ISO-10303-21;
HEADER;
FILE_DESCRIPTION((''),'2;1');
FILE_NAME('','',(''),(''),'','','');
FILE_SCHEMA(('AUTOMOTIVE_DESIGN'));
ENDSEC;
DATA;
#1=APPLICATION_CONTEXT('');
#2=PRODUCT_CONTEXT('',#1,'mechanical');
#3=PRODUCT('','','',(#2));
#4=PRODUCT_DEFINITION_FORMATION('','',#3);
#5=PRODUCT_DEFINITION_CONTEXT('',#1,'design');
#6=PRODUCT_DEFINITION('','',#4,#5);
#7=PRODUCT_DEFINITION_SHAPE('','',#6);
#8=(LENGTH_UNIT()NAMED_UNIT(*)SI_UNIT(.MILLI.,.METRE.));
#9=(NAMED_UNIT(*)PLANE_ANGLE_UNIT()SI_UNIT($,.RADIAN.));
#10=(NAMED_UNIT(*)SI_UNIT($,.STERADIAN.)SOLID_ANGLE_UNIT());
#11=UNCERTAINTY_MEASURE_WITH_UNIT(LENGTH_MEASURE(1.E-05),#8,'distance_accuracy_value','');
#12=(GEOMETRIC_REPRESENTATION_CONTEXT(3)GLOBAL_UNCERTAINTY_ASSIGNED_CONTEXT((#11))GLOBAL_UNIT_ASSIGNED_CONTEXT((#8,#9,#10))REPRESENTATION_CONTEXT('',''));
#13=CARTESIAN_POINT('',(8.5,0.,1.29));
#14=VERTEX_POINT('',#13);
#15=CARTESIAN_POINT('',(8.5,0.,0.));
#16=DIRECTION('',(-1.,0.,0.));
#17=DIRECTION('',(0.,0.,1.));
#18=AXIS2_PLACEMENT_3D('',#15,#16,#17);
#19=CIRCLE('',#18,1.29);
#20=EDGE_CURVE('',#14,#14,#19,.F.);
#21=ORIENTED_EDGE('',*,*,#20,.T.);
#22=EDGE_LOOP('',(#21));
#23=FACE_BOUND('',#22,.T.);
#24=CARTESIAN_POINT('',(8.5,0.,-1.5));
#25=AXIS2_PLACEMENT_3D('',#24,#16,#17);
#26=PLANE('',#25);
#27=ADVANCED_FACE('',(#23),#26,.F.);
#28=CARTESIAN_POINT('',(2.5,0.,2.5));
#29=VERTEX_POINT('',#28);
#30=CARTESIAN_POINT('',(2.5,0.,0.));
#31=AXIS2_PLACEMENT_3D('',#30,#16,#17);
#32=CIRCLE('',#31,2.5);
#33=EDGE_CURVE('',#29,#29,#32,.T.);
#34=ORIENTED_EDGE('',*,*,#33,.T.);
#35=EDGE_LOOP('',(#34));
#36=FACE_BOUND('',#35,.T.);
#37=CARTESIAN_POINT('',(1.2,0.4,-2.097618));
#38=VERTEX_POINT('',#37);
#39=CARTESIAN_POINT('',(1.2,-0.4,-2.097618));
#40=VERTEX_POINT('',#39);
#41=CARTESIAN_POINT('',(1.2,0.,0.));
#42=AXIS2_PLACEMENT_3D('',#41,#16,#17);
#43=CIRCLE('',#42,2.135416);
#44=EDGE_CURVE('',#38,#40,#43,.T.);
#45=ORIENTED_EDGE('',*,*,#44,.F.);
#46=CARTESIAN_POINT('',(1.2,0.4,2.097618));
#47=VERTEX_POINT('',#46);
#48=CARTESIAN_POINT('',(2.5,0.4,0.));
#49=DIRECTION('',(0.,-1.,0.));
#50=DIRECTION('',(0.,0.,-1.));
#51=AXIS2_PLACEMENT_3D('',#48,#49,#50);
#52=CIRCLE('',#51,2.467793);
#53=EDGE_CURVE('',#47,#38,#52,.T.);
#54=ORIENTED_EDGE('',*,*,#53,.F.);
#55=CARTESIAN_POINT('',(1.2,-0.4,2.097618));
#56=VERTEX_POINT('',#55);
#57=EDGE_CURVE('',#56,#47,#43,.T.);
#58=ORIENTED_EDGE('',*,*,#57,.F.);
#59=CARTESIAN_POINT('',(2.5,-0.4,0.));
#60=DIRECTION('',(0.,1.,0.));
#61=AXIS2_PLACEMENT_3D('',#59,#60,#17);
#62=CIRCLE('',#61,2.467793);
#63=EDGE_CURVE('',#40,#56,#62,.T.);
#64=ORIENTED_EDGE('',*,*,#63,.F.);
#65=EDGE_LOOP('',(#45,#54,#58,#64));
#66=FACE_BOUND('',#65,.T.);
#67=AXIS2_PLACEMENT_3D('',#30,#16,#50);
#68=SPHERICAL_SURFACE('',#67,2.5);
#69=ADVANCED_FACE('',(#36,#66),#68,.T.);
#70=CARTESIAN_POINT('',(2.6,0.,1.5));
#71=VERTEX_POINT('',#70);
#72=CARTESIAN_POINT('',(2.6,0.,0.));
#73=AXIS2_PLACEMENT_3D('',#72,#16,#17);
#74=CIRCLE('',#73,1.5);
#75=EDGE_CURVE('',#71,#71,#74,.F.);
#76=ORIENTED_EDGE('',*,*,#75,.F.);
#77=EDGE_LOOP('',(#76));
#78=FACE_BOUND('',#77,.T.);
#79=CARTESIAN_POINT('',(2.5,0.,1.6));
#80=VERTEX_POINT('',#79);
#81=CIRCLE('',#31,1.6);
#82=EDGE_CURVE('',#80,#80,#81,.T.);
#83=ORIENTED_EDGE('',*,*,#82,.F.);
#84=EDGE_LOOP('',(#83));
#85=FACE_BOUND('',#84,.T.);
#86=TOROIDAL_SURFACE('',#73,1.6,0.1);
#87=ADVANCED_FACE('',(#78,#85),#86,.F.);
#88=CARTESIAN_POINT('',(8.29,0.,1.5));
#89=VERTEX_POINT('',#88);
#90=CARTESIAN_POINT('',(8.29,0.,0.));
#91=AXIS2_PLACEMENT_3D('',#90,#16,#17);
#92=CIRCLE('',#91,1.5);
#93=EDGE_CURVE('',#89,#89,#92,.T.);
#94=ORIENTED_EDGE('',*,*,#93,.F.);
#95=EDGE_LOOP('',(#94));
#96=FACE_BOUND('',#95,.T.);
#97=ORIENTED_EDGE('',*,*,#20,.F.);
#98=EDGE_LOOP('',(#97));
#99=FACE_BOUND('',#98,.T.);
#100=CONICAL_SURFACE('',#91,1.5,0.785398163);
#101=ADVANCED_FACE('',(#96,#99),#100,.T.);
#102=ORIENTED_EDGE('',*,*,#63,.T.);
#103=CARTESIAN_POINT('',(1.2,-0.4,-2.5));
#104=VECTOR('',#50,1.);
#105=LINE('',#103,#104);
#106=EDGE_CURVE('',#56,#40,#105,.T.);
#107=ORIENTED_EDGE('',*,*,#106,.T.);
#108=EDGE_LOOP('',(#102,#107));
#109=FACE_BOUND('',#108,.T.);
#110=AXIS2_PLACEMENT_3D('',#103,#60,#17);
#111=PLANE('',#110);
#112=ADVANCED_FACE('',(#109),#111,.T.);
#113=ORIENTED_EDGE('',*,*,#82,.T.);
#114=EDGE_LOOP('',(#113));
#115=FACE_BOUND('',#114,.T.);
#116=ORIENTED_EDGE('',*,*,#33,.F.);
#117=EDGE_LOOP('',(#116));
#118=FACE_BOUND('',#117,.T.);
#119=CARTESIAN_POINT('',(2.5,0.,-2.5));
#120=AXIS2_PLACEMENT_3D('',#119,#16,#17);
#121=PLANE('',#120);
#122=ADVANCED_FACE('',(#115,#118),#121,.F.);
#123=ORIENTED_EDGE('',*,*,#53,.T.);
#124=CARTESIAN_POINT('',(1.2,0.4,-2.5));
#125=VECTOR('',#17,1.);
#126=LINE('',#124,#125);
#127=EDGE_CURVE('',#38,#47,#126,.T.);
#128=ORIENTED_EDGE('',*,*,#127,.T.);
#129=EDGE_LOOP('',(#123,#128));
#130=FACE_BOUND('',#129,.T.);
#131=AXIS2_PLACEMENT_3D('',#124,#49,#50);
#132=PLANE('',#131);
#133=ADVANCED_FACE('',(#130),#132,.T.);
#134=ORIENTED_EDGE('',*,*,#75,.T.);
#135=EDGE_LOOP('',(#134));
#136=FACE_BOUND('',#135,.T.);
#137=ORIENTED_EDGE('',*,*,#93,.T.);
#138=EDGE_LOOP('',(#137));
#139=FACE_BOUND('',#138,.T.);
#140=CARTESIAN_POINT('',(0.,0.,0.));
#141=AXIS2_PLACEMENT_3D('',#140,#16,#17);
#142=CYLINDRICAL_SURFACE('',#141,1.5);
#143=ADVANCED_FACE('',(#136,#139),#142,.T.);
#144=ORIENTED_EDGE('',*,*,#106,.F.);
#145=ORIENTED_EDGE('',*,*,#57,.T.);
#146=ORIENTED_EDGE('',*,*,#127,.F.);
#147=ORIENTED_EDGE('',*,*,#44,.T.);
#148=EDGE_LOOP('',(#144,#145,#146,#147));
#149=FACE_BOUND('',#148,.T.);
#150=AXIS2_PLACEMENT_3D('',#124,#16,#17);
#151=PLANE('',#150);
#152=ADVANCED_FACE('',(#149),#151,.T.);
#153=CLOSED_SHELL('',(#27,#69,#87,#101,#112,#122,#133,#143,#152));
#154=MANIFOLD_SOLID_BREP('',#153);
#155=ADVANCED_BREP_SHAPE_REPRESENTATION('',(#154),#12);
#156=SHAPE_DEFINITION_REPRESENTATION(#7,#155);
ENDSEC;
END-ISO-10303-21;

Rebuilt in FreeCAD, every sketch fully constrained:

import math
import FreeCAD as App
import Part
import Sketcher
from FreeCAD import Vector


def edges_at(feature, points):
    """Names of the edges that pass closest to the given points."""
    edges = feature.Shape.Edges
    near = lambda p: min(range(len(edges)), key=lambda i: edges[i].distToShape(Part.Vertex(*p))[0])
    return sorted({f"Edge{near(p) + 1}" for p in points})


def add_polygon(sketch, points):
    """Adds a closed chain of lines whose ends are joined by coincident constraints."""
    first, n = sketch.GeometryCount, len(points)
    for a, b in zip(points, points[1:] + points[:1]):
        sketch.addGeometry(Part.LineSegment(App.Vector(*a, 0), App.Vector(*b, 0)), False)
    for i in range(n):
        sketch.addConstraint(Sketcher.Constraint("Coincident", first + i, 2, first + (i + 1) % n, 1))

doc = App.newDocument("Part")
body = doc.addObject("PartDesign::Body", "Body")

sketch1 = doc.addObject("Sketcher::SketchObject", "Sketch")
body.addObject(sketch1)
sketch1.AttachmentSupport = (doc.XZ_Plane, [""])
sketch1.MapMode = "FlatFace"
sketch1.addGeometry(Part.LineSegment(Vector(2.5, -1.5, 0), Vector(2.5, -2.5, 0)), False)
sketch1.addGeometry(Part.ArcOfCircle(Part.Circle(Vector(2.5, 0, 0), Vector(0, 0, 1), 2.5), math.radians(180), math.radians(270)), False)
sketch1.addGeometry(Part.LineSegment(Vector(0, 0, 0), Vector(8.5, 0, 0)), False)
sketch1.addGeometry(Part.LineSegment(Vector(8.5, 0, 0), Vector(8.5, -1.5, 0)), False)
sketch1.addGeometry(Part.LineSegment(Vector(8.5, -1.5, 0), Vector(2.5, -1.5, 0)), False)
sketch1.addConstraint(Sketcher.Constraint("Coincident", 0, 2, 1, 2))
sketch1.addConstraint(Sketcher.Constraint("Coincident", 1, 1, 2, 1))
sketch1.addConstraint(Sketcher.Constraint("Coincident", 2, 2, 3, 1))
sketch1.addConstraint(Sketcher.Constraint("Coincident", 3, 2, 4, 1))
sketch1.addConstraint(Sketcher.Constraint("Coincident", 4, 2, 0, 1))
sketch1.addConstraint(Sketcher.Constraint("Vertical", 0))
sketch1.addConstraint(Sketcher.Constraint("Horizontal", 2))
sketch1.addConstraint(Sketcher.Constraint("Vertical", 3))
sketch1.addConstraint(Sketcher.Constraint("Horizontal", 4))
sketch1.addConstraint(Sketcher.Constraint("Coincident", 1, 1, -1, 1))
sketch1.addConstraint(Sketcher.Constraint("PointOnObject", 1, 3, -1))
sketch1.addConstraint(Sketcher.Constraint("Vertical", 1, 3, 0, 2))
sketch1.addConstraint(Sketcher.Constraint("Radius", 1, 2.5))
sketch1.addConstraint(Sketcher.Constraint("DistanceX", 4, 2, 4, 1, 6.0))
sketch1.addConstraint(Sketcher.Constraint("DistanceY", 0, 2, 0, 1, 1.0))
revolution = doc.addObject("PartDesign::Revolution", "Revolution")
body.addObject(revolution)
revolution.Profile = sketch1
revolution.ReferenceAxis = (sketch1, ["H_Axis"])
revolution.Angle = 360
doc.recompute()

chamfer = doc.addObject("PartDesign::Chamfer", "Chamfer")
body.addObject(chamfer)
chamfer.Base = (revolution, edges_at(revolution, [(8.5, 0, 1.5)]))
chamfer.Size = 0.21
doc.recompute()

fillet = doc.addObject("PartDesign::Fillet", "Fillet")
body.addObject(fillet)
fillet.Base = (chamfer, edges_at(chamfer, [(2.5, 0, 1.5)]))
fillet.Radius = 0.1

sketch2 = doc.addObject("Sketcher::SketchObject", "Sketch001")
body.addObject(sketch2)
sketch2.AttachmentSupport = (doc.YZ_Plane, [""])
sketch2.MapMode = "FlatFace"
add_polygon(sketch2, [(0.4, 2.5), (-0.4, 2.5), (-0.4, -2.5), (0.4, -2.5)])
sketch2.addConstraint(Sketcher.Constraint("Horizontal", 0))
sketch2.addConstraint(Sketcher.Constraint("Vertical", 1))
sketch2.addConstraint(Sketcher.Constraint("Horizontal", 2))
sketch2.addConstraint(Sketcher.Constraint("Vertical", 3))
sketch2.addConstraint(Sketcher.Constraint("Symmetric", 0, 2, 2, 2, -1, 1))
sketch2.addConstraint(Sketcher.Constraint("DistanceY", 1, 2, 1, 1, 5.0))
sketch2.addConstraint(Sketcher.Constraint("DistanceX", 0, 2, 0, 1, 0.8))
pocket1 = doc.addObject("PartDesign::Pocket", "Pocket")
body.addObject(pocket1)
pocket1.Profile = sketch2
pocket1.Length = 1.2
pocket1.Reversed = True

doc.recompute()
